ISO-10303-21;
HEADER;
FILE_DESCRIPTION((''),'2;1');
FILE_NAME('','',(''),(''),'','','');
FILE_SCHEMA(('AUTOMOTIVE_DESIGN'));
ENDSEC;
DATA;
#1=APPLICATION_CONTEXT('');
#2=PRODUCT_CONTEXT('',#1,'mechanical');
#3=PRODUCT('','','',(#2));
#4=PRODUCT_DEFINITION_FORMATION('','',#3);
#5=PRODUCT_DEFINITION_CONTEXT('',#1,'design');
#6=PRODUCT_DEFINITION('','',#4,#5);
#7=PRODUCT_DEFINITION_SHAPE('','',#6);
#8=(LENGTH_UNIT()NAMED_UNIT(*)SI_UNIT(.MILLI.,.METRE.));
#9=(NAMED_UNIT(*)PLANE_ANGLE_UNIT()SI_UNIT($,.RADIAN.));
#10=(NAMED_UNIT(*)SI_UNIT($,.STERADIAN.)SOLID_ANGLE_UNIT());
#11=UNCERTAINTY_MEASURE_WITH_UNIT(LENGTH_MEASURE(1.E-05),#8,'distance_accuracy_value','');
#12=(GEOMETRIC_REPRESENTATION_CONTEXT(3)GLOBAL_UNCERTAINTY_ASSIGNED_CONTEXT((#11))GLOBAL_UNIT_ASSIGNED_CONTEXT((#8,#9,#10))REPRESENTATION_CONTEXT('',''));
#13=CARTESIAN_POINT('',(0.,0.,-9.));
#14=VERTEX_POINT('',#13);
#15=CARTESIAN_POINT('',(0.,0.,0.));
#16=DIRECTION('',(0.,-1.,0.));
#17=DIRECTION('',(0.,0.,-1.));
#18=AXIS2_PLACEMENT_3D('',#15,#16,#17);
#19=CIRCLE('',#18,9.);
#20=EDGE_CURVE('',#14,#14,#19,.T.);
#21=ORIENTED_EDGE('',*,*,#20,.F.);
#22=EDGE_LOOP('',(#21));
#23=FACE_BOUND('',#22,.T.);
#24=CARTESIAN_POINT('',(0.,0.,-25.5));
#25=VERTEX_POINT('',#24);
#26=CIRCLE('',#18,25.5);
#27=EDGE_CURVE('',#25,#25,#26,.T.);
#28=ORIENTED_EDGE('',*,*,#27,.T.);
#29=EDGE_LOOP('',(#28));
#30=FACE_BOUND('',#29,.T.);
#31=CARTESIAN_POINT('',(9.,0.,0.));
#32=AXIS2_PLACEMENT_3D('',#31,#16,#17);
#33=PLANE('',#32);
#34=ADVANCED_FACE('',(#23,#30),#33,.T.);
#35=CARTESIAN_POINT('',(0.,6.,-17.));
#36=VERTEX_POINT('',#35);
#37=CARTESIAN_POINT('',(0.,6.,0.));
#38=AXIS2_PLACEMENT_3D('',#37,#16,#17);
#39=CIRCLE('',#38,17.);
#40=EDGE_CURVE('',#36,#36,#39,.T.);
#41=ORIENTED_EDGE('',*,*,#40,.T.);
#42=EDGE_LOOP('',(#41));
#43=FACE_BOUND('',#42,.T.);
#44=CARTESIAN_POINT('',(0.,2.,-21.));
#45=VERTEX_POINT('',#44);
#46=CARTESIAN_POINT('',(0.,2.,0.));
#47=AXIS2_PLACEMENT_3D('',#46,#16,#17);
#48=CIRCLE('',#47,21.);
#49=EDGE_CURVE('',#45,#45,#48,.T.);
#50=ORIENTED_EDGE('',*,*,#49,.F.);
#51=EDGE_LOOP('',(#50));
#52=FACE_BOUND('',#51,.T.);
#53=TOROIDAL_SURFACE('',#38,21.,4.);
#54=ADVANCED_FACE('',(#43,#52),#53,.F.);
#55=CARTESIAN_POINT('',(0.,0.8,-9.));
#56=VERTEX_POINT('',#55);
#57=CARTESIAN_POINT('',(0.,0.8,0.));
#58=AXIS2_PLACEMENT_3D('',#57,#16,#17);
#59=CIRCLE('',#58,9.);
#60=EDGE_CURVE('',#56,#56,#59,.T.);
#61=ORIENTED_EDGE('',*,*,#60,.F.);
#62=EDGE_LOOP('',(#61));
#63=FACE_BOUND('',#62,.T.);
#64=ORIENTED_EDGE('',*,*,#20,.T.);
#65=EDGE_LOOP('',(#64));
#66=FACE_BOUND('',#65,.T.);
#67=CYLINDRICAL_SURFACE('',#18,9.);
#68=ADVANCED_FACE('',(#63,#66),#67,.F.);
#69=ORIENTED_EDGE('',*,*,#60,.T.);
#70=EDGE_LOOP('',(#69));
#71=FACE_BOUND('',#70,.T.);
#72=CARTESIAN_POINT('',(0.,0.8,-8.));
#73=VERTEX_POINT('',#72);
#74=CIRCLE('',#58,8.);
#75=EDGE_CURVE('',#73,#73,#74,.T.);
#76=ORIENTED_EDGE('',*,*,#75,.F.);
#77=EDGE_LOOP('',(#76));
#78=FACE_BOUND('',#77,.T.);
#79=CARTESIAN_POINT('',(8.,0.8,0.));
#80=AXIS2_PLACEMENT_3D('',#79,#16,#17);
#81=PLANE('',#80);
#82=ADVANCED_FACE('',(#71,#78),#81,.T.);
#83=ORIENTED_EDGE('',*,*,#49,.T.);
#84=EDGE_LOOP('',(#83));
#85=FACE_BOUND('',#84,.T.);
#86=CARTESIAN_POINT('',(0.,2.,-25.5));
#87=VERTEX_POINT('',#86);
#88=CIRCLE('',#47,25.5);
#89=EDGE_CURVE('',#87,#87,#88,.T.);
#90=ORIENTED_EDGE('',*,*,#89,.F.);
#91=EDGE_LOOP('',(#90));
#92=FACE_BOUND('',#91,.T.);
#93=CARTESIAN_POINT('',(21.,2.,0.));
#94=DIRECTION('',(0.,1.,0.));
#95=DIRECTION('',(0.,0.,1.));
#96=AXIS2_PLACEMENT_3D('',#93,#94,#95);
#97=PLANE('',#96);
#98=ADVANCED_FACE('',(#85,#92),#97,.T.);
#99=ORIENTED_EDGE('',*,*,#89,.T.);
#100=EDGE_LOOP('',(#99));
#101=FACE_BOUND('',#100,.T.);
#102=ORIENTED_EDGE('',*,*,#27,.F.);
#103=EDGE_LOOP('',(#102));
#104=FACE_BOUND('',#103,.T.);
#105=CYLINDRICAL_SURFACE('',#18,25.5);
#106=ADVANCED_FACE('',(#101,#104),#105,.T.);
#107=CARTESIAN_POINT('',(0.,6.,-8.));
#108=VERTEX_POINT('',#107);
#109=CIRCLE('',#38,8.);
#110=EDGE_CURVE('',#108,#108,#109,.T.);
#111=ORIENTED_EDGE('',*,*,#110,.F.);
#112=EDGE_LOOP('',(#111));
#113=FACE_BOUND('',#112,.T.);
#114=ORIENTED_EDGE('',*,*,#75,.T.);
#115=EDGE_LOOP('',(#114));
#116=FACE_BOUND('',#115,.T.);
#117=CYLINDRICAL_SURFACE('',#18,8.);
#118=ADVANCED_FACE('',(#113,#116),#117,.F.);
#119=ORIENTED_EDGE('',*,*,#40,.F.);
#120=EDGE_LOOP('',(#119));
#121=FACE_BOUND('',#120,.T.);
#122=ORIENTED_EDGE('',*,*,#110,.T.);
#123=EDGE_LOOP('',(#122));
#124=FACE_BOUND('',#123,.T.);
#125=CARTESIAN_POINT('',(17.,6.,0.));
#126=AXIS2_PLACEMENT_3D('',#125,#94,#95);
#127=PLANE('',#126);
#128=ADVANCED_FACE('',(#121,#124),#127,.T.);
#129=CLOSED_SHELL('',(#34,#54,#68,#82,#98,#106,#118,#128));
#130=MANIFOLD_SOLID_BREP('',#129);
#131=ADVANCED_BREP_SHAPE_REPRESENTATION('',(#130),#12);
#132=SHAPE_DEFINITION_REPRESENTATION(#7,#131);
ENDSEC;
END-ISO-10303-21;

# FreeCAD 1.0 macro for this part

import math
import FreeCAD as App
import Part
import Sketcher

V = App.Vector

doc = App.newDocument("Part")
params = doc.addObject("Spreadsheet::Sheet", "Params")
for row, (alias, value) in enumerate([
    ("sketch1_radius", "4 mm"),
    ("sketch1_width", "9 mm"),
    ("sketch1_width2", "1 mm"),
    ("sketch1_height", "2 mm"),
    ("sketch1_width3", "16.5 mm"),
    ("revolution_angle", "360 deg"),
], start=1):
    params.set(f"A{row}", alias)
    params.set(f"B{row}", "=" + value)
    params.setAlias(f"B{row}", alias)

body = doc.addObject("PartDesign::Body", "Body")

# Sketch on XY plane
sketch1 = body.newObject("Sketcher::SketchObject", "Sketch")
sketch1.AttachmentSupport = (doc.getObject("XY_Plane"), [""])
sketch1.MapMode = "FlatFace"
sketch1.addGeometry([
    Part.LineSegment(V(9, 0, 0), V(25.5, 0, 0)),  # 0
    Part.LineSegment(V(25.5, 0, 0), V(25.5, 2, 0)),  # 1
    Part.LineSegment(V(25.5, 2, 0), V(21, 2, 0)),  # 2
    Part.ArcOfCircle(Part.Circle(V(21, 6, 0), V(0, 0, 1), 4), math.radians(180), math.radians(270)),  # 3
    Part.LineSegment(V(17, 6, 0), V(8, 6, 0)),  # 4
    Part.LineSegment(V(8, 6, 0), V(8, 0.8, 0)),  # 5
    Part.LineSegment(V(8, 0.8, 0), V(9, 0.8, 0)),  # 6
    Part.LineSegment(V(9, 0.8, 0), V(9, 0, 0)),  # 7
], False)
sketch1.addConstraint([
    Sketcher.Constraint("Coincident", 0, 2, 1, 1),
    Sketcher.Constraint("Coincident", 1, 2, 2, 1),
    Sketcher.Constraint("Tangent", 2, 2, 3, 2),
    Sketcher.Constraint("Coincident", 3, 1, 4, 1),
    Sketcher.Constraint("Coincident", 4, 2, 5, 1),
    Sketcher.Constraint("Coincident", 5, 2, 6, 1),
    Sketcher.Constraint("Coincident", 6, 2, 7, 1),
    Sketcher.Constraint("Coincident", 7, 2, 0, 1),
    Sketcher.Constraint("Horizontal", 0),
    Sketcher.Constraint("Vertical", 1),
    Sketcher.Constraint("Horizontal", 2),
    Sketcher.Constraint("Horizontal", 4),
    Sketcher.Constraint("Vertical", 5),
    Sketcher.Constraint("Horizontal", 6),
    Sketcher.Constraint("Vertical", 7),
    Sketcher.Constraint("PointOnObject", 0, 2, -1),
    Sketcher.Constraint("Radius", 3, 4.0),
    Sketcher.Constraint("DistanceX", 4, 2, 4, 1, 9.0),
    Sketcher.Constraint("DistanceX", 6, 1, 6, 2, 1.0),
    Sketcher.Constraint("DistanceY", 1, 1, 1, 2, 2.0),
    Sketcher.Constraint("DistanceX", 0, 1, 0, 2, 16.5),
    Sketcher.Constraint("DistanceY", 5, 2, 5, 1, 5.2),
    Sketcher.Constraint("DistanceY", 7, 2, 7, 1, 0.8),
    Sketcher.Constraint("DistanceX", -1, 1, 3, 3, 21.0),
])
sketch1.setExpression("Constraints[16]", "Params.sketch1_radius")
sketch1.setExpression("Constraints[17]", "Params.sketch1_width")
sketch1.setExpression("Constraints[18]", "Params.sketch1_width2")
sketch1.setExpression("Constraints[19]", "Params.sketch1_height")
sketch1.setExpression("Constraints[20]", "Params.sketch1_width3")
revolution = body.newObject("PartDesign::Revolution", "Revolution")
revolution.Profile = sketch1
revolution.ReferenceAxis = (sketch1, ["V_Axis"])
revolution.setExpression("Angle", "Params.revolution_angle")

doc.recompute()
